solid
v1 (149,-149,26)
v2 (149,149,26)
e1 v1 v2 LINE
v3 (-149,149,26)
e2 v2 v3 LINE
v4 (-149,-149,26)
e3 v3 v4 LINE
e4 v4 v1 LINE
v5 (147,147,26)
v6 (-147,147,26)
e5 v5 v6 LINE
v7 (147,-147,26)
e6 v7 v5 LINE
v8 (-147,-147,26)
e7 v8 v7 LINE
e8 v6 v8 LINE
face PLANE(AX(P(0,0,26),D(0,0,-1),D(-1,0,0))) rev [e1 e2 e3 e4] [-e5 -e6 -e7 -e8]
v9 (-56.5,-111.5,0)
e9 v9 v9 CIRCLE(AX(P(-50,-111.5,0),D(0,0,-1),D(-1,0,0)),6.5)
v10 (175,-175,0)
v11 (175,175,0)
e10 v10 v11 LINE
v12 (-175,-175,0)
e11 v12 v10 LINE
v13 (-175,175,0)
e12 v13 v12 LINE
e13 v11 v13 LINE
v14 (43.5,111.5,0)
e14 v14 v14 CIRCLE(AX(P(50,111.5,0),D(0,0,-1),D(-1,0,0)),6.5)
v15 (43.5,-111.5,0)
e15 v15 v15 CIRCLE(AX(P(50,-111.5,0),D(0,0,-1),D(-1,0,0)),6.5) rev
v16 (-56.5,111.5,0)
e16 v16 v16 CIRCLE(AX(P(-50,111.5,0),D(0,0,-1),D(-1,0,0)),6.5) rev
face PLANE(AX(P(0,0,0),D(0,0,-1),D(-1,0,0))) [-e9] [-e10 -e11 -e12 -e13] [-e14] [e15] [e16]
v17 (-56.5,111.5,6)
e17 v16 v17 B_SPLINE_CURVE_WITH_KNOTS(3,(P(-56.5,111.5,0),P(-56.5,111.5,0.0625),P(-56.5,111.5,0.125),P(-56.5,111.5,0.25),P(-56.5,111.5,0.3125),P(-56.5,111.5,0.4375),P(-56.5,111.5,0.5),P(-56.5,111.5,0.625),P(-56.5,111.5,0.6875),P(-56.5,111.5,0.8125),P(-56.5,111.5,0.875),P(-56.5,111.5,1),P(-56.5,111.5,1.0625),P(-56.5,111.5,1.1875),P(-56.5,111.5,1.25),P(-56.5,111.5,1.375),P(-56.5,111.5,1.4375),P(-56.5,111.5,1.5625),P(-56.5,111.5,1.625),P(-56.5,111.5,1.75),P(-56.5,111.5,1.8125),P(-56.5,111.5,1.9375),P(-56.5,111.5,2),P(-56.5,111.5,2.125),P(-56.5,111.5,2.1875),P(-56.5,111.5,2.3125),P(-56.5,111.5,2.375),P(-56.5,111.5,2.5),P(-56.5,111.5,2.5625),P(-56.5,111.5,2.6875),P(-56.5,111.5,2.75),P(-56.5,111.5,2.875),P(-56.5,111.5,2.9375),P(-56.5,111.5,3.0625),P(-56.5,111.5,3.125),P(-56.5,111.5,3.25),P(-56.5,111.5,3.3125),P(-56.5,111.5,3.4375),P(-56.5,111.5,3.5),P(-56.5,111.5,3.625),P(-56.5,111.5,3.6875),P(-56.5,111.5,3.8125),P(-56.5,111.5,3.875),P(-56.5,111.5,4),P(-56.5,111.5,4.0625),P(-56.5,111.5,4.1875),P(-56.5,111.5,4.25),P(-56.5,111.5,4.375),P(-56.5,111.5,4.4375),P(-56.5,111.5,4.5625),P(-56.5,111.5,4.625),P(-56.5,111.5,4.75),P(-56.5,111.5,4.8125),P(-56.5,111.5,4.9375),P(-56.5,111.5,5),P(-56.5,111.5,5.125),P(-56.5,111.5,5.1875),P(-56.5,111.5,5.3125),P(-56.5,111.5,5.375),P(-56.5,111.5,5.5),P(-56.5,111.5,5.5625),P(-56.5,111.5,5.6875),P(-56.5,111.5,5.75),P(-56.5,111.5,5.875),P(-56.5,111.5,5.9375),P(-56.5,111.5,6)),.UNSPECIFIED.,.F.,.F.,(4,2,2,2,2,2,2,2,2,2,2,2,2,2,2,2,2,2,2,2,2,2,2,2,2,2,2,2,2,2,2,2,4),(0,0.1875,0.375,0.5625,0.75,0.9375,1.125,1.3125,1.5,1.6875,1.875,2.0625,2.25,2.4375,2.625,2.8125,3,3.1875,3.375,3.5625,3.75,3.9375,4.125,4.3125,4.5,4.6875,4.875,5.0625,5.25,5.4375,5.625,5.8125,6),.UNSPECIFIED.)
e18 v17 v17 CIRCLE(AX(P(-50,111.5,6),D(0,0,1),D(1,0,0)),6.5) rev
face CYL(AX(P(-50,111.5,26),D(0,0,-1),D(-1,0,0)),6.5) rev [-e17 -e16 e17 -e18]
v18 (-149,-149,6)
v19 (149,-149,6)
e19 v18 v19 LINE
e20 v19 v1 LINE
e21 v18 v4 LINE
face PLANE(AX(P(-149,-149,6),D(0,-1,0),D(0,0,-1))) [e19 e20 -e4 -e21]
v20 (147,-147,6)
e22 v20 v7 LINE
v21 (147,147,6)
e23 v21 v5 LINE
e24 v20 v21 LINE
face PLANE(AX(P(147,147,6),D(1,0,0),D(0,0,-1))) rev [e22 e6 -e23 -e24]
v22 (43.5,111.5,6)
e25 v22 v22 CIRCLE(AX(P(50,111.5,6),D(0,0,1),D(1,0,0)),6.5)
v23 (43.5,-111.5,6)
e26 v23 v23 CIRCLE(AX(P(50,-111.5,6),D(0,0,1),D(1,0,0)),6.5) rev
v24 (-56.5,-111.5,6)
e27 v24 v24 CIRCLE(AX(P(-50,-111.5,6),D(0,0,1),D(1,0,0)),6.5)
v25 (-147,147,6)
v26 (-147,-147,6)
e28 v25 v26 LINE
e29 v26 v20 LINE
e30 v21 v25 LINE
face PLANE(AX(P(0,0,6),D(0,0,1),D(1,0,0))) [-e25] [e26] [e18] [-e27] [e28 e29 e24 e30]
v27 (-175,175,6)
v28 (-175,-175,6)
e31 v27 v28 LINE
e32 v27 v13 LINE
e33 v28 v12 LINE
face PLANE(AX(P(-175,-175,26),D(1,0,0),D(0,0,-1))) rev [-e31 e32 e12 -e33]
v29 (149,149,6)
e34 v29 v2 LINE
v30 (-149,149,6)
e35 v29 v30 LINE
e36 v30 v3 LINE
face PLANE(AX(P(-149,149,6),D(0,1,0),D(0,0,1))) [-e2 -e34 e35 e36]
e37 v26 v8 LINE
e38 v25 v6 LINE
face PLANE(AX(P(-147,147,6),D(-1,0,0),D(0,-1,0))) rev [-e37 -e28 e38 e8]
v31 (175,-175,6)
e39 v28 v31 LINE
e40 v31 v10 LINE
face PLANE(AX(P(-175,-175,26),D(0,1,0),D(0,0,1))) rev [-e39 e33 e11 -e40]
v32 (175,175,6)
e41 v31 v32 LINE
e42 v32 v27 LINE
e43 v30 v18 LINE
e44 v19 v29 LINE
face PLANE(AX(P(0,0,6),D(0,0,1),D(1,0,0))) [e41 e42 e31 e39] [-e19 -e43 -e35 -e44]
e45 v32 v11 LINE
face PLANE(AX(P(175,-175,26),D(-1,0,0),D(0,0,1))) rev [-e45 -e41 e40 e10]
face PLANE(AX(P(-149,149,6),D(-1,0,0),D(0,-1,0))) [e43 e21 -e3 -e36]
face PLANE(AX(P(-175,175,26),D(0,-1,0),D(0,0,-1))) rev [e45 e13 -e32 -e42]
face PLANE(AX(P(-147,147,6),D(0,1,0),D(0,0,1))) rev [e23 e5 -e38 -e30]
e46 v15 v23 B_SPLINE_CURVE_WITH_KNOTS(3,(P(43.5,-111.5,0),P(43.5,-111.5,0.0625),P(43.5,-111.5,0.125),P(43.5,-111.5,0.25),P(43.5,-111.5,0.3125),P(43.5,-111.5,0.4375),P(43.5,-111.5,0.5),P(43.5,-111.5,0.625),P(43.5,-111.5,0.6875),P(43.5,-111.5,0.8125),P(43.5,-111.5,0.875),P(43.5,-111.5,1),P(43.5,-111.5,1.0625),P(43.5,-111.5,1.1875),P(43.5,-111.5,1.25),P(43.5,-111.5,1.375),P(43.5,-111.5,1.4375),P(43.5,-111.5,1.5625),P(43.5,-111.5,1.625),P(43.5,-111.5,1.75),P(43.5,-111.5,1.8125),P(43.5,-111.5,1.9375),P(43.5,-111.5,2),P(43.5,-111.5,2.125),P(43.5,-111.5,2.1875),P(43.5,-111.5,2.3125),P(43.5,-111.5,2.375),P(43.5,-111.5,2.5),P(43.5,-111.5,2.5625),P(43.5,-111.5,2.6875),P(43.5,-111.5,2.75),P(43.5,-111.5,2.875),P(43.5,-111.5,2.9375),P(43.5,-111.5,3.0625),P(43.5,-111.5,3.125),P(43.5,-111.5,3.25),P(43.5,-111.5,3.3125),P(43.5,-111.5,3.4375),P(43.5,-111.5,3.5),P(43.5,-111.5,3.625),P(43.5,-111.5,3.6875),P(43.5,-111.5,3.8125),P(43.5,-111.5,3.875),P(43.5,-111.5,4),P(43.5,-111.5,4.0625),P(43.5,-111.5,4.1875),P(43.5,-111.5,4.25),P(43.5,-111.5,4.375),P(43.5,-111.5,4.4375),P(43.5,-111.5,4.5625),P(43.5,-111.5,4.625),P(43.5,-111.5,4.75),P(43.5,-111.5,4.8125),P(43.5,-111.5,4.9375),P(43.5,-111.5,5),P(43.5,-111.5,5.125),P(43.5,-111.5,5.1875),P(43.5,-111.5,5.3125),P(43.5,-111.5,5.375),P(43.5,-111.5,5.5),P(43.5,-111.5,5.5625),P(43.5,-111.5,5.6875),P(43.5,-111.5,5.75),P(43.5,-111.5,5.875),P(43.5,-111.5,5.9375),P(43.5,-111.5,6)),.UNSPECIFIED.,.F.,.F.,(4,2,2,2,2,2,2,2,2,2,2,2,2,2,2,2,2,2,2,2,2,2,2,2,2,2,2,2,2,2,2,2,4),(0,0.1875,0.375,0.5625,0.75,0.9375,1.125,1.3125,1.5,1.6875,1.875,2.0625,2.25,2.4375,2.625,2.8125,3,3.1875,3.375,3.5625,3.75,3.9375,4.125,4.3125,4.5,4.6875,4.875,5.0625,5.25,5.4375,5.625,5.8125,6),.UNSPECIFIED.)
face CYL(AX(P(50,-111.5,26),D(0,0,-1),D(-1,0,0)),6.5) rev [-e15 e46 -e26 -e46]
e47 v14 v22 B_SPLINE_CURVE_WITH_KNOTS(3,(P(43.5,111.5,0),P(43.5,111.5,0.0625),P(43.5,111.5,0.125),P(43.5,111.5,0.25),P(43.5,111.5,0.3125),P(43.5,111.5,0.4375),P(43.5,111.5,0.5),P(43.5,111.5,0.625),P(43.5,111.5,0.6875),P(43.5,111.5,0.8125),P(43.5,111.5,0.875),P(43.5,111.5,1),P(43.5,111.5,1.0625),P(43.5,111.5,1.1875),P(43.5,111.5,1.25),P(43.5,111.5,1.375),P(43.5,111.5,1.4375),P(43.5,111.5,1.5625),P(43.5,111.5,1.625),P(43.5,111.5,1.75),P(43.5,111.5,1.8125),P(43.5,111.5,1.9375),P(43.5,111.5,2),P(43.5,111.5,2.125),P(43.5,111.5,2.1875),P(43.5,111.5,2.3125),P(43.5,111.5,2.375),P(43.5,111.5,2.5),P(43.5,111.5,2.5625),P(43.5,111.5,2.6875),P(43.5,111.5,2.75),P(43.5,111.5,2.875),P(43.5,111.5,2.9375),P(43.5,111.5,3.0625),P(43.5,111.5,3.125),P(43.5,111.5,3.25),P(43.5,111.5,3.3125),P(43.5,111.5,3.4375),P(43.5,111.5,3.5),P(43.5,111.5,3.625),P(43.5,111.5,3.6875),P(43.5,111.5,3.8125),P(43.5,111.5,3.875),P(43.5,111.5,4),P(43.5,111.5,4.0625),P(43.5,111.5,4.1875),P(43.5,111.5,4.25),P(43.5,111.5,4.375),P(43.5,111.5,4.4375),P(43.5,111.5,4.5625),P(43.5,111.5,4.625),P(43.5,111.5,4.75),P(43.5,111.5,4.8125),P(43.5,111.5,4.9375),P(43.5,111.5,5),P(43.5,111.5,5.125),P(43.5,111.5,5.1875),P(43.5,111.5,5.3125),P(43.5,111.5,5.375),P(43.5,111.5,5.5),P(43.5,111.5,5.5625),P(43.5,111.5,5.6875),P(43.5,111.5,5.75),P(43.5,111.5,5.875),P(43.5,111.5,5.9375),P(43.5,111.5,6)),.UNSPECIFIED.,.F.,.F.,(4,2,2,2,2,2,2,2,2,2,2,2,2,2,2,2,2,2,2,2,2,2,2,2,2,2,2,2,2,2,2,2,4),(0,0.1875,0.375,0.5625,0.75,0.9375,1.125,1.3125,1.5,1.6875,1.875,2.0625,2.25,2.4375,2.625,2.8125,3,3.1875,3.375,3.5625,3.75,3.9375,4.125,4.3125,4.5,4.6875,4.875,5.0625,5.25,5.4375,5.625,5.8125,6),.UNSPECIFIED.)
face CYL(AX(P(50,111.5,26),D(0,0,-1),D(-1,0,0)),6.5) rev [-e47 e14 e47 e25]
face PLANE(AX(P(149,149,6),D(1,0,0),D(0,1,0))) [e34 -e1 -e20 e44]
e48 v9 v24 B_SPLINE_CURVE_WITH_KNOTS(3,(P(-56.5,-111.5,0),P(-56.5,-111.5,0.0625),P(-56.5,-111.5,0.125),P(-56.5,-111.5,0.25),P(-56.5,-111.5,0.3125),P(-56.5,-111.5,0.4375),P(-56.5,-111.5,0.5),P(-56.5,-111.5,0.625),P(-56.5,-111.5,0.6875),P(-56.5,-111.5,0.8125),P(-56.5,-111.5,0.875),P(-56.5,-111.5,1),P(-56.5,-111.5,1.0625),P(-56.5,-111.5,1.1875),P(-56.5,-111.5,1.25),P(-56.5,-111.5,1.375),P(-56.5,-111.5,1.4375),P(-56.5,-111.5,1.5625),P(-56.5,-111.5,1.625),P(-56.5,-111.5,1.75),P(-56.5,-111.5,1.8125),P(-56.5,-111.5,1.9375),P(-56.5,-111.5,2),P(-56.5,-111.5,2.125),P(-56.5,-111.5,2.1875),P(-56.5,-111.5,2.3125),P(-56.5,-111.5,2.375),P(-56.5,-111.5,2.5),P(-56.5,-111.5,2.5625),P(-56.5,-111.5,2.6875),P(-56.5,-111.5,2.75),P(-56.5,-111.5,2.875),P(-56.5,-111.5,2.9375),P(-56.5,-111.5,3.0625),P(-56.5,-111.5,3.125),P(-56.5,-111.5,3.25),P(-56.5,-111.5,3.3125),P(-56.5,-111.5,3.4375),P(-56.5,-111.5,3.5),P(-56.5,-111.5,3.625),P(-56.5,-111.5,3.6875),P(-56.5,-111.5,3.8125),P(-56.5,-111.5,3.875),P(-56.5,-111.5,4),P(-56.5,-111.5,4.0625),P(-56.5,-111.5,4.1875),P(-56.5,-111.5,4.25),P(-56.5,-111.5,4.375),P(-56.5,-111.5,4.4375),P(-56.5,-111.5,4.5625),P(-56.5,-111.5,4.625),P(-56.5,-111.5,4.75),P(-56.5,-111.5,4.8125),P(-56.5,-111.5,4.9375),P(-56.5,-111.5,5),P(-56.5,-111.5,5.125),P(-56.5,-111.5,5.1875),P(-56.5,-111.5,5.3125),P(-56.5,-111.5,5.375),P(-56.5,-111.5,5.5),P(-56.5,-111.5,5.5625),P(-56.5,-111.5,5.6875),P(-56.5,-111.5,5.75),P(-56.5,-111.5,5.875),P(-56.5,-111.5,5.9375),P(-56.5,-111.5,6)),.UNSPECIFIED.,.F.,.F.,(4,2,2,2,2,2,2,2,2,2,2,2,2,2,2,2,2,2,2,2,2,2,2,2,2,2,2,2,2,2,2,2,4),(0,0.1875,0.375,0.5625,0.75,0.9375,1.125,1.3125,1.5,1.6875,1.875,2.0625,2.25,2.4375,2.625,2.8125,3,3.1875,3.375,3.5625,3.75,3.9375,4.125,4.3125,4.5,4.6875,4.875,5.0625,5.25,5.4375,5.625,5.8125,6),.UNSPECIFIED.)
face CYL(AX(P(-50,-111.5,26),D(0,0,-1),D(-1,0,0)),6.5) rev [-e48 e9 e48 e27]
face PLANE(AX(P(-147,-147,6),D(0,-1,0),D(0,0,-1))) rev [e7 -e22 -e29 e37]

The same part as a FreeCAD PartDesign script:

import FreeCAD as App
import Part
import Sketcher

V = App.Vector

doc = App.newDocument("Part")
params = doc.addObject("Spreadsheet::Sheet", "Params")
for row, (alias, value) in enumerate([
    ("sketch1_width", "350 mm"),
    ("pad1_length", "26 mm"),
    ("sketch2_width", "350 mm"),
    ("sketch2_width2", "298 mm"),
    ("pocket1_length", "20 mm"),
    ("sketch3_width", "294 mm"),
    ("pocket2_length", "20 mm"),
    ("sketch4_diameter", "13 mm"),
], start=1):
    params.set(f"A{row}", alias)
    params.set(f"B{row}", "=" + value)
    params.setAlias(f"B{row}", alias)

body = doc.addObject("PartDesign::Body", "Body")

# Sketch on XY plane
sketch1 = body.newObject("Sketcher::SketchObject", "Sketch")
sketch1.AttachmentSupport = (doc.getObject("XY_Plane"), [""])
sketch1.MapMode = "FlatFace"
sketch1.addGeometry(Part.LineSegment(V(-175, 175, 0), V(-175, -175, 0)), False)
sketch1.addGeometry(Part.LineSegment(V(-175, -175, 0), V(175, -175, 0)), False)
sketch1.addGeometry(Part.LineSegment(V(175, -175, 0), V(175, 175, 0)), False)
sketch1.addGeometry(Part.LineSegment(V(175, 175, 0), V(-175, 175, 0)), False)
sketch1.addConstraint(Sketcher.Constraint("Coincident", 0, 2, 1, 1))
sketch1.addConstraint(Sketcher.Constraint("Coincident", 1, 2, 2, 1))
sketch1.addConstraint(Sketcher.Constraint("Coincident", 2, 2, 3, 1))
sketch1.addConstraint(Sketcher.Constraint("Coincident", 3, 2, 0, 1))
sketch1.addConstraint(Sketcher.Constraint("Vertical", 0))
sketch1.addConstraint(Sketcher.Constraint("Horizontal", 1))
sketch1.addConstraint(Sketcher.Constraint("Vertical", 2))
sketch1.addConstraint(Sketcher.Constraint("Horizontal", 3))
sketch1.addConstraint(Sketcher.Constraint("Symmetric", 0, 2, 2, 2, -1, 1))
sketch1.addConstraint(Sketcher.Constraint("Equal", 3, 0))
sketch1.addConstraint(Sketcher.Constraint("DistanceX", 1, 1, 1, 2, 350.0))
sketch1.setExpression("Constraints[10]", "Params.sketch1_width")
pad1 = body.newObject("PartDesign::Pad", "Pad")
pad1.Profile = sketch1
pad1.setExpression("Length", "Params.pad1_length")

# Sketch on XY plane
sketch2 = body.newObject("Sketcher::SketchObject", "Sketch001")
sketch2.AttachmentSupport = (doc.getObject("XY_Plane"), [""])
sketch2.MapMode = "FlatFace"
sketch2.AttachmentOffset = App.Placement(V(0, 0, 26), App.Rotation())
sketch2.addGeometry(Part.LineSegment(V(-175, 175, 0), V(-175, -175, 0)), False)
sketch2.addGeometry(Part.LineSegment(V(-175, -175, 0), V(175, -175, 0)), False)
sketch2.addGeometry(Part.LineSegment(V(175, -175, 0), V(175, 175, 0)), False)
sketch2.addGeometry(Part.LineSegment(V(175, 175, 0), V(-175, 175, 0)), False)
sketch2.addGeometry(Part.LineSegment(V(149, -149, 0), V(-149, -149, 0)), False)
sketch2.addGeometry(Part.LineSegment(V(-149, -149, 0), V(-149, 149, 0)), False)
sketch2.addGeometry(Part.LineSegment(V(-149, 149, 0), V(149, 149, 0)), False)
sketch2.addGeometry(Part.LineSegment(V(149, 149, 0), V(149, -149, 0)), False)
sketch2.addConstraint(Sketcher.Constraint("Coincident", 0, 2, 1, 1))
sketch2.addConstraint(Sketcher.Constraint("Coincident", 1, 2, 2, 1))
sketch2.addConstraint(Sketcher.Constraint("Coincident", 2, 2, 3, 1))
sketch2.addConstraint(Sketcher.Constraint("Coincident", 3, 2, 0, 1))
sketch2.addConstraint(Sketcher.Constraint("Coincident", 4, 2, 5, 1))
sketch2.addConstraint(Sketcher.Constraint("Coincident", 5, 2, 6, 1))
sketch2.addConstraint(Sketcher.Constraint("Coincident", 6, 2, 7, 1))
sketch2.addConstraint(Sketcher.Constraint("Coincident", 7, 2, 4, 1))
sketch2.addConstraint(Sketcher.Constraint("Vertical", 0))
sketch2.addConstraint(Sketcher.Constraint("Horizontal", 1))
sketch2.addConstraint(Sketcher.Constraint("Vertical", 2))
sketch2.addConstraint(Sketcher.Constraint("Horizontal", 3))
sketch2.addConstraint(Sketcher.Constraint("Horizontal", 4))
sketch2.addConstraint(Sketcher.Constraint("Vertical", 5))
sketch2.addConstraint(Sketcher.Constraint("Horizontal", 6))
sketch2.addConstraint(Sketcher.Constraint("Vertical", 7))
sketch2.addConstraint(Sketcher.Constraint("Symmetric", 0, 2, 2, 2, -1, 1))
sketch2.addConstraint(Sketcher.Constraint("Symmetric", 4, 2, 6, 2, -1, 1))
sketch2.addConstraint(Sketcher.Constraint("Equal", 3, 0))
sketch2.addConstraint(Sketcher.Constraint("Equal", 6, 5))
sketch2.addConstraint(Sketcher.Constraint("DistanceX", 1, 1, 1, 2, 350.0))
sketch2.addConstraint(Sketcher.Constraint("DistanceX", 4, 2, 4, 1, 298.0))
sketch2.setExpression("Constraints[20]", "Params.sketch2_width")
sketch2.setExpression("Constraints[21]", "Params.sketch2_width2")
pocket1 = body.newObject("PartDesign::Pocket", "Pocket")
pocket1.Profile = sketch2
pocket1.setExpression("Length", "Params.pocket1_length")

# Sketch on XY plane
sketch3 = body.newObject("Sketcher::SketchObject", "Sketch002")
sketch3.AttachmentSupport = (doc.getObject("XY_Plane"), [""])
sketch3.MapMode = "FlatFace"
sketch3.AttachmentOffset = App.Placement(V(0, 0, 26), App.Rotation())
sketch3.addGeometry(Part.LineSegment(V(-147, 147, 0), V(-147, -147, 0)), False)
sketch3.addGeometry(Part.LineSegment(V(-147, -147, 0), V(147, -147, 0)), False)
sketch3.addGeometry(Part.LineSegment(V(147, -147, 0), V(147, 147, 0)), False)
sketch3.addGeometry(Part.LineSegment(V(147, 147, 0), V(-147, 147, 0)), False)
sketch3.addConstraint(Sketcher.Constraint("Coincident", 0, 2, 1, 1))
sketch3.addConstraint(Sketcher.Constraint("Coincident", 1, 2, 2, 1))
sketch3.addConstraint(Sketcher.Constraint("Coincident", 2, 2, 3, 1))
sketch3.addConstraint(Sketcher.Constraint("Coincident", 3, 2, 0, 1))
sketch3.addConstraint(Sketcher.Constraint("Vertical", 0))
sketch3.addConstraint(Sketcher.Constraint("Horizontal", 1))
sketch3.addConstraint(Sketcher.Constraint("Vertical", 2))
sketch3.addConstraint(Sketcher.Constraint("Horizontal", 3))
sketch3.addConstraint(Sketcher.Constraint("Symmetric", 0, 2, 2, 2, -1, 1))
sketch3.addConstraint(Sketcher.Constraint("Equal", 3, 0))
sketch3.addConstraint(Sketcher.Constraint("DistanceX", 1, 1, 1, 2, 294.0))
sketch3.setExpression("Constraints[10]", "Params.sketch3_width")
pocket2 = body.newObject("PartDesign::Pocket", "Pocket001")
pocket2.Profile = sketch3
pocket2.setExpression("Length", "Params.pocket2_length")

# Sketch on XY plane
sketch4 = body.newObject("Sketcher::SketchObject", "Sketch003")
sketch4.AttachmentSupport = (doc.getObject("XY_Plane"), [""])
sketch4.MapMode = "FlatFace"
sketch4.addGeometry(Part.Circle(V(50, 112, 0), V(0, 0, 1), 6), False)
sketch4.addGeometry(Part.Circle(V(-50, 112, 0), V(0, 0, 1), 6), False)
sketch4.addGeometry(Part.Circle(V(-50, -112, 0), V(0, 0, 1), 6), False)
sketch4.addGeometry(Part.Circle(V(50, -112, 0), V(0, 0, 1), 6), False)
sketch4.addConstraint(Sketcher.Constraint("Equal", 0, 1))
sketch4.addConstraint(Sketcher.Constraint("Equal", 1, 2))
sketch4.addConstraint(Sketcher.Constraint("Equal", 2, 3))
sketch4.addConstraint(Sketcher.Constraint("Symmetric", 0, 3, 2, 3, -1, 1))
sketch4.addConstraint(Sketcher.Constraint("Symmetric", 1, 3, 3, 3, -1, 1))
sketch4.addConstraint(Sketcher.Constraint("Symmetric", 0, 3, 1, 3, -2))
sketch4.addConstraint(Sketcher.Constraint("Diameter", 0, 13.0))
sketch4.addConstraint(Sketcher.Constraint("DistanceX", -1, 1, 0, 3, 50.0))
sketch4.addConstraint(Sketcher.Constraint("DistanceY", 2, 3, 1, 3, 223.0))
sketch4.setExpression("Constraints[6]", "Params.sketch4_diameter")
pocket3 = body.newObject("PartDesign::Pocket", "Pocket002")
pocket3.Profile = sketch4
pocket3.Type = "ThroughAll"
pocket3.Midplane = True

doc.recompute()
